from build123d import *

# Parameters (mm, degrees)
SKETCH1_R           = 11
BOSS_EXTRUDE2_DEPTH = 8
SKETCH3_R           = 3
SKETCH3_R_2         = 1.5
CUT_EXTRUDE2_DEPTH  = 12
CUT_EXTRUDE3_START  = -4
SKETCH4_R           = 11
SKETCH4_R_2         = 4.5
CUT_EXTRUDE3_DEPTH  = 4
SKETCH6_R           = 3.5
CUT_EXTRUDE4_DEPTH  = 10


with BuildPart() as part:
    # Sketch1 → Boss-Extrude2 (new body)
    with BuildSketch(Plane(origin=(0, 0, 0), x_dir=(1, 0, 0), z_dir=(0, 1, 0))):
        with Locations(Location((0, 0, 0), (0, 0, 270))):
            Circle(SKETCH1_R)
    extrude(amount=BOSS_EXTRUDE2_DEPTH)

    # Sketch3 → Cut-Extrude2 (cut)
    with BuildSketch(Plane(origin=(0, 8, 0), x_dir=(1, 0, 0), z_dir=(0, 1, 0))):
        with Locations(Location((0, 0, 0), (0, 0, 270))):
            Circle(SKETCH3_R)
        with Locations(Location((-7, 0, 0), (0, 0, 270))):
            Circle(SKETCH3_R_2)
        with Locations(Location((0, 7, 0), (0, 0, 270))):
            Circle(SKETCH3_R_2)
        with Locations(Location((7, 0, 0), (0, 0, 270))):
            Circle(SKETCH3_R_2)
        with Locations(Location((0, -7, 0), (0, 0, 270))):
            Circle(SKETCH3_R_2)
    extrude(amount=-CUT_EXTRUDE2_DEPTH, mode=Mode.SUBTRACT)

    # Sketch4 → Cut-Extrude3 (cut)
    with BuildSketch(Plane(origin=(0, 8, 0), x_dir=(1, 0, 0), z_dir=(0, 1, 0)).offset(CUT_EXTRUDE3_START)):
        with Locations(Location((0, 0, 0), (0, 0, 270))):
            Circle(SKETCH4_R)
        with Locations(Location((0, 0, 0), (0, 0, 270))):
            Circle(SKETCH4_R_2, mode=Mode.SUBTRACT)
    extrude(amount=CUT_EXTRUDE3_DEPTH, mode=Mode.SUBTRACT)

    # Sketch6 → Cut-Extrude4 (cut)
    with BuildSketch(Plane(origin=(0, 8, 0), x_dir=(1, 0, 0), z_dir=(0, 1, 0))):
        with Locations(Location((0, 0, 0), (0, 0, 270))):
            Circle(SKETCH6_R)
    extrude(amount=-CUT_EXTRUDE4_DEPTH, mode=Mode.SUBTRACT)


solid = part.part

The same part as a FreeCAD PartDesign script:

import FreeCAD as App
import Part
import Sketcher

V = App.Vector
Q = App.Units.Quantity

doc = App.newDocument("Part")
params = doc.addObject("Spreadsheet::Sheet", "Params")
for row, (alias, value) in enumerate([
    ("sketch1_diameter", "22 mm"),
    ("pad1_length", "8 mm"),
    ("sketch2_diameter", "6 mm"),
    ("sketch2_diameter2", "3 mm"),
    ("pocket1_length", "12 mm"),
    ("sketch3_diameter", "22 mm"),
    ("sketch3_diameter2", "9 mm"),
    ("pocket2_length", "4 mm"),
    ("sketch4_diameter", "7 mm"),
    ("pocket3_length", "10 mm"),
], start=1):
    params.set(f"A{row}", alias)
    params.set(f"B{row}", "=" + value)
    params.setAlias(f"B{row}", alias)

body = doc.addObject("PartDesign::Body", "Body")

# Sketch on XZ plane
sketch1 = doc.addObject("Sketcher::SketchObject", "Sketch")
body.addObject(sketch1)
sketch1.AttachmentSupport = (doc.XZ_Plane, [""])
sketch1.MapMode = "FlatFace"
sketch1.addGeometry(Part.Circle(V(0, 0, 0), V(0, 0, 1), 11), False)
sketch1.addConstraint(Sketcher.Constraint("Coincident", 0, 3, -1, 1))
sketch1.addConstraint(Sketcher.Constraint("Diameter", 0, Q("22 mm")))
sketch1.setExpression("Constraints[1]", "Params.sketch1_diameter")
pad1 = doc.addObject("PartDesign::Pad", "Pad")
body.addObject(pad1)
pad1.Profile = sketch1
pad1.setExpression("Length", "Params.pad1_length")
pad1.Reversed = True

# Sketch on XZ plane
sketch2 = doc.addObject("Sketcher::SketchObject", "Sketch001")
body.addObject(sketch2)
sketch2.AttachmentSupport = (doc.XZ_Plane, [""])
sketch2.MapMode = "FlatFace"
sketch2.AttachmentOffset = App.Placement(V(0, 0, -8), App.Rotation())
sketch2.addGeometry(Part.Circle(V(0, 0, 0), V(0, 0, 1), 3), False)
sketch2.addGeometry(Part.Circle(V(-7, 0, 0), V(0, 0, 1), 1.5), False)
sketch2.addGeometry(Part.Circle(V(0, -7, 0), V(0, 0, 1), 1.5), False)
sketch2.addGeometry(Part.Circle(V(7, 0, 0), V(0, 0, 1), 1.5), False)
sketch2.addGeometry(Part.Circle(V(0, 7, 0), V(0, 0, 1), 1.5), False)
sketch2.addConstraint(Sketcher.Constraint("Coincident", 0, 3, -1, 1))
sketch2.addConstraint(Sketcher.Constraint("Equal", 1, 2))
sketch2.addConstraint(Sketcher.Constraint("Equal", 2, 3))
sketch2.addConstraint(Sketcher.Constraint("Equal", 3, 4))
sketch2.addConstraint(Sketcher.Constraint("Symmetric", 1, 3, 3, 3, -1, 1))
sketch2.addConstraint(Sketcher.Constraint("Symmetric", 2, 3, 4, 3, -1, 1))
sketch2.addConstraint(Sketcher.Constraint("PointOnObject", 1, 3, -1))
sketch2.addConstraint(Sketcher.Constraint("PointOnObject", 2, 3, -2))
sketch2.addConstraint(Sketcher.Constraint("Diameter", 0, Q("6 mm")))
sketch2.addConstraint(Sketcher.Constraint("Diameter", 1, Q("3 mm")))
sketch2.addConstraint(Sketcher.Constraint("DistanceX", 1, 3, -1, 1, Q("7 mm")))
sketch2.addConstraint(Sketcher.Constraint("DistanceY", 2, 3, -1, 1, Q("7 mm")))
sketch2.setExpression("Constraints[8]", "Params.sketch2_diameter")
sketch2.setExpression("Constraints[9]", "Params.sketch2_diameter2")
pocket1 = doc.addObject("PartDesign::Pocket", "Pocket")
body.addObject(pocket1)
pocket1.Profile = sketch2
pocket1.setExpression("Length", "Params.pocket1_length")
pocket1.Reversed = True

# Sketch on XZ plane
sketch3 = doc.addObject("Sketcher::SketchObject", "Sketch002")
body.addObject(sketch3)
sketch3.AttachmentSupport = (doc.XZ_Plane, [""])
sketch3.MapMode = "FlatFace"
sketch3.AttachmentOffset = App.Placement(V(0, 0, -4), App.Rotation())
sketch3.addGeometry(Part.Circle(V(0, 0, 0), V(0, 0, 1), 11), False)
sketch3.addGeometry(Part.Circle(V(0, 0, 0), V(0, 0, 1), 4.5), False)
sketch3.addConstraint(Sketcher.Constraint("Coincident", 0, 3, -1, 1))
sketch3.addConstraint(Sketcher.Constraint("Coincident", 1, 3, -1, 1))
sketch3.addConstraint(Sketcher.Constraint("Diameter", 0, Q("22 mm")))
sketch3.addConstraint(Sketcher.Constraint("Diameter", 1, Q("9 mm")))
sketch3.setExpression("Constraints[2]", "Params.sketch3_diameter")
sketch3.setExpression("Constraints[3]", "Params.sketch3_diameter2")
pocket2 = doc.addObject("PartDesign::Pocket", "Pocket001")
body.addObject(pocket2)
pocket2.Profile = sketch3
pocket2.setExpression("Length", "Params.pocket2_length")

# Sketch on XZ plane
sketch4 = doc.addObject("Sketcher::SketchObject", "Sketch003")
body.addObject(sketch4)
sketch4.AttachmentSupport = (doc.XZ_Plane, [""])
sketch4.MapMode = "FlatFace"
sketch4.AttachmentOffset = App.Placement(V(0, 0, -8), App.Rotation())
sketch4.addGeometry(Part.Circle(V(0, 0, 0), V(0, 0, 1), 3.5), False)
sketch4.addConstraint(Sketcher.Constraint("Coincident", 0, 3, -1, 1))
sketch4.addConstraint(Sketcher.Constraint("Diameter", 0, Q("7 mm")))
sketch4.setExpression("Constraints[1]", "Params.sketch4_diameter")
pocket3 = doc.addObject("PartDesign::Pocket", "Pocket002")
body.addObject(pocket3)
pocket3.Profile = sketch4
pocket3.setExpression("Length", "Params.pocket3_length")
pocket3.Reversed = True

doc.recompute()
